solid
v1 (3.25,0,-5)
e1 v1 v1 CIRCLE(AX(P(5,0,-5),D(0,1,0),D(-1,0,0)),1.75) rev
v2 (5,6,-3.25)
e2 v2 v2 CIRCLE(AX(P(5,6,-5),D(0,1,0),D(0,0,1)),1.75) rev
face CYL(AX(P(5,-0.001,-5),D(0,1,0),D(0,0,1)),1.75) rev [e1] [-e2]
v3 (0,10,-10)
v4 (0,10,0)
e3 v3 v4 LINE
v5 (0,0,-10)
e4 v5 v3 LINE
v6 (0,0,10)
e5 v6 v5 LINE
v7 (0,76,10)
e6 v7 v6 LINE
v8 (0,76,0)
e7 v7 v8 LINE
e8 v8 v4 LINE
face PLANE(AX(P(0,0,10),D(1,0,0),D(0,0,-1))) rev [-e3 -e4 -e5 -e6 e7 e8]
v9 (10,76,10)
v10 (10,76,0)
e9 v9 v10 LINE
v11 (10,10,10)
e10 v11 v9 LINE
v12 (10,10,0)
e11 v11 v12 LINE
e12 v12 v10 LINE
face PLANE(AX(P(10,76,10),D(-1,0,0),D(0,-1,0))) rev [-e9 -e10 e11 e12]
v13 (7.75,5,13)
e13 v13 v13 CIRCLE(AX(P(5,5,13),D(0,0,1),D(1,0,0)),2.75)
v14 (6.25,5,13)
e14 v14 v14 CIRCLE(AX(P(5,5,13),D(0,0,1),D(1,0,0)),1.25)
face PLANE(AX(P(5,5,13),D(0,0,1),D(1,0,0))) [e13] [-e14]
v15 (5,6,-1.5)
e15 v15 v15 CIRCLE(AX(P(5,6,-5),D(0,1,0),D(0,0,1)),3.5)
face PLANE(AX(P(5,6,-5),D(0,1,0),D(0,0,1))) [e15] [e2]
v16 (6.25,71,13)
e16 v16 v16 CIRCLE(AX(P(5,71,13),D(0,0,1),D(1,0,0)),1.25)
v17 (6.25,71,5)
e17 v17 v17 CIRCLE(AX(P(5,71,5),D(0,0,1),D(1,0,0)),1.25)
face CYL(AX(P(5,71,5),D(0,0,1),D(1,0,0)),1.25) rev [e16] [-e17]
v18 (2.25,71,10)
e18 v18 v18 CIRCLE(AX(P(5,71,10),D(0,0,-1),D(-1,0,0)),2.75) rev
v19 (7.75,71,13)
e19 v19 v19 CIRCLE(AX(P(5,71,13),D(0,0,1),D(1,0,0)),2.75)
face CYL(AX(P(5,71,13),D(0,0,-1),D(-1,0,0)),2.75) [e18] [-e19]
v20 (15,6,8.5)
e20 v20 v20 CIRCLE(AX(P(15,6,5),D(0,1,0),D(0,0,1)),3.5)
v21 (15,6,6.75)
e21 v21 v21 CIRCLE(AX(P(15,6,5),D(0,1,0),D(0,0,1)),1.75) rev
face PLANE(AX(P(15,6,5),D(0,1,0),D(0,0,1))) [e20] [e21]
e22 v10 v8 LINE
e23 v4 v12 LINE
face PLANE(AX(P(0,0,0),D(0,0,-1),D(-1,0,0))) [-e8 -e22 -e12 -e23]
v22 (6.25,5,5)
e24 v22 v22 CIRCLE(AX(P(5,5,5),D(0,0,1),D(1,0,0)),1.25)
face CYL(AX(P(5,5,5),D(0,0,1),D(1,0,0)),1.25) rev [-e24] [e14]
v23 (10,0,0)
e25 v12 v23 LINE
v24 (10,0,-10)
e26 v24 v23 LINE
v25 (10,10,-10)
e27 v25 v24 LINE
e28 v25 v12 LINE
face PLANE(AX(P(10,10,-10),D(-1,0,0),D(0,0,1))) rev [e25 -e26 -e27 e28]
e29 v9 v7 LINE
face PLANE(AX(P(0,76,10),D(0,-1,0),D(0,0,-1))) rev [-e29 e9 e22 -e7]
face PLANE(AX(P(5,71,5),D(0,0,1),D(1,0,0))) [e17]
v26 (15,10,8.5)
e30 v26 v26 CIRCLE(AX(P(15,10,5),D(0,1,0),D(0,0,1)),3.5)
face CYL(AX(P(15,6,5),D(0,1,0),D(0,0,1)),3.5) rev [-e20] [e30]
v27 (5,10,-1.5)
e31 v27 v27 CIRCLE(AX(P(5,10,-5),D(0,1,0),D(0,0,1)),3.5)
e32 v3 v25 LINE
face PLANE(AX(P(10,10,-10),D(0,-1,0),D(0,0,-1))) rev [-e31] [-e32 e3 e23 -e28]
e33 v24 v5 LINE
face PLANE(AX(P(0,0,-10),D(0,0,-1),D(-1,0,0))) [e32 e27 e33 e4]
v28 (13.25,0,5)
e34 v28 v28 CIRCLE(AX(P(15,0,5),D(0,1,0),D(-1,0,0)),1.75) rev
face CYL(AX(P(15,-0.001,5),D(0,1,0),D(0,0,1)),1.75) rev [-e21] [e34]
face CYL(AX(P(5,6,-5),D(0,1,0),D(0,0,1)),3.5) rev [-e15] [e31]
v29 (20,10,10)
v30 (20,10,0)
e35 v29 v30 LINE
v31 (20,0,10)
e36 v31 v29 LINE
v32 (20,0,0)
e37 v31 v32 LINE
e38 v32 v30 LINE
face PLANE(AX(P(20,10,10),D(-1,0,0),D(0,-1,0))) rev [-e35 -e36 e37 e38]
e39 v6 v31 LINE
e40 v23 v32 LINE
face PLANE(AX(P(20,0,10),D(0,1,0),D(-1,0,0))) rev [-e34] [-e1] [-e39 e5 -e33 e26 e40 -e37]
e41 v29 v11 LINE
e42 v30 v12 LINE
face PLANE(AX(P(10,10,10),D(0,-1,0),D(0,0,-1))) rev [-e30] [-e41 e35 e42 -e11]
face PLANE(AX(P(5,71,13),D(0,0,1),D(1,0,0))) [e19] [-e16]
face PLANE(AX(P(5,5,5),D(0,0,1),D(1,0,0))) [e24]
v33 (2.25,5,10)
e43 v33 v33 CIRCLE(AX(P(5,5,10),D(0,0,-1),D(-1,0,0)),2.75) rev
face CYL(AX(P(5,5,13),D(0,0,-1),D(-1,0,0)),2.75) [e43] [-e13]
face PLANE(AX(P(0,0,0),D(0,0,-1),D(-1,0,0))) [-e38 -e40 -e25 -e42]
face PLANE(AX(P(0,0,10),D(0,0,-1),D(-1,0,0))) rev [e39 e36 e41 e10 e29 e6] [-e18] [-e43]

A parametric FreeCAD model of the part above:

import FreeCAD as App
import Part
import Sketcher


def add_polygon(sketch, points):
    """Adds a closed chain of lines whose ends are joined by coincident constraints."""
    first, n = sketch.GeometryCount, len(points)
    for a, b in zip(points, points[1:] + points[:1]):
        sketch.addGeometry(Part.LineSegment(App.Vector(*a, 0), App.Vector(*b, 0)), False)
    for i in range(n):
        sketch.addConstraint(Sketcher.Constraint("Coincident", first + i, 2, first + (i + 1) % n, 1))

doc = App.newDocument("Part")
body = doc.addObject("PartDesign::Body", "Body")

sketch1 = doc.addObject("Sketcher::SketchObject", "Sketch")
body.addObject(sketch1)
sketch1.AttachmentSupport = (doc.XY_Plane, [""])
sketch1.MapMode = "FlatFace"
add_polygon(sketch1, [(10, 76), (0, 76), (0, 0), (20, 0), (20, 10), (10, 10)])
sketch1.addConstraint([
    Sketcher.Constraint("Horizontal", 0),
    Sketcher.Constraint("Vertical", 1),
    Sketcher.Constraint("Horizontal", 2),
    Sketcher.Constraint("Vertical", 3),
    Sketcher.Constraint("Horizontal", 4),
    Sketcher.Constraint("Vertical", 5),
    Sketcher.Constraint("Coincident", 1, 2, -1, 1),
    Sketcher.Constraint("Equal", 0, 4),
    Sketcher.Constraint("Equal", 4, 3),
    Sketcher.Constraint("DistanceX", 0, 2, 0, 1, 10.0),
    Sketcher.Constraint("DistanceY", 1, 2, 1, 1, 76.0),
])
pad1 = doc.addObject("PartDesign::Pad", "Pad")
body.addObject(pad1)
pad1.Profile = sketch1
pad1.Length = 10

sketch2 = doc.addObject("Sketcher::SketchObject", "Sketch001")
body.addObject(sketch2)
sketch2.AttachmentSupport = (doc.XY_Plane, [""])
sketch2.MapMode = "FlatFace"
sketch2.AttachmentOffset = App.Placement(App.Vector(0, 0, 10), App.Rotation())
sketch2.addGeometry([
    Part.Circle(App.Vector(5, 71, 0), App.Vector(0, 0, 1), 2.75),
    Part.Circle(App.Vector(5, 5, 0), App.Vector(0, 0, 1), 2.75),
], False)
sketch2.addConstraint([
    Sketcher.Constraint("Equal", 0, 1),
    Sketcher.Constraint("Vertical", 0, 3, 1, 3),
    Sketcher.Constraint("Diameter", 0, 5.5),
    Sketcher.Constraint("DistanceX", -1, 1, 0, 3, 5.0),
    Sketcher.Constraint("DistanceY", -1, 1, 0, 3, 71.0),
    Sketcher.Constraint("DistanceY", -1, 1, 1, 3, 5.0),
])
pad2 = doc.addObject("PartDesign::Pad", "Pad001")
body.addObject(pad2)
pad2.Profile = sketch2
pad2.Length = 3

sketch3 = doc.addObject("Sketcher::SketchObject", "Sketch002")
body.addObject(sketch3)
sketch3.AttachmentSupport = (doc.XY_Plane, [""])
sketch3.MapMode = "FlatFace"
sketch3.AttachmentOffset = App.Placement(App.Vector(0, 0, 13), App.Rotation())
sketch3.addGeometry([
    Part.Circle(App.Vector(5, 71, 0), App.Vector(0, 0, 1), 1.25),
    Part.Circle(App.Vector(5, 5, 0), App.Vector(0, 0, 1), 1.25),
], False)
sketch3.addConstraint([
    Sketcher.Constraint("Equal", 0, 1),
    Sketcher.Constraint("Vertical", 0, 3, 1, 3),
    Sketcher.Constraint("Diameter", 0, 2.5),
    Sketcher.Constraint("DistanceX", -1, 1, 0, 3, 5.0),
    Sketcher.Constraint("DistanceY", -1, 1, 0, 3, 71.0),
    Sketcher.Constraint("DistanceY", -1, 1, 1, 3, 5.0),
])
pocket1 = doc.addObject("PartDesign::Pocket", "Pocket")
body.addObject(pocket1)
pocket1.Profile = sketch3
pocket1.Length = 8

sketch4 = doc.addObject("Sketcher::SketchObject", "Sketch003")
body.addObject(sketch4)
sketch4.AttachmentSupport = (doc.XY_Plane, [""])
sketch4.MapMode = "FlatFace"
add_polygon(sketch4, [(10, 10), (10, 0), (0, 0), (0, 10)])
sketch4.addConstraint([
    Sketcher.Constraint("Vertical", 0),
    Sketcher.Constraint("Horizontal", 1),
    Sketcher.Constraint("Vertical", 2),
    Sketcher.Constraint("Horizontal", 3),
    Sketcher.Constraint("Coincident", 1, 2, -1, 1),
    Sketcher.Constraint("Equal", 3, 0),
    Sketcher.Constraint("DistanceX", 1, 2, 1, 1, 10.0),
])
pad3 = doc.addObject("PartDesign::Pad", "Pad002")
body.addObject(pad3)
pad3.Profile = sketch4
pad3.Length = 10
pad3.Reversed = True

sketch5 = doc.addObject("Sketcher::SketchObject", "Sketch004")
body.addObject(sketch5)
sketch5.AttachmentSupport = (doc.XZ_Plane, [""])
sketch5.MapMode = "FlatFace"
sketch5.AttachmentOffset = App.Placement(App.Vector(0, 0, -10), App.Rotation())
sketch5.addGeometry(Part.Circle(App.Vector(15, 5, 0), App.Vector(0, 0, 1), 1.75), False)
sketch5.addConstraint([
    Sketcher.Constraint("Diameter", 0, 3.5),
    Sketcher.Constraint("DistanceX", -1, 1, 0, 3, 15.0),
    Sketcher.Constraint("DistanceY", -1, 1, 0, 3, 5.0),
])
pocket2 = doc.addObject("PartDesign::Pocket", "Pocket001")
body.addObject(pocket2)
pocket2.Profile = sketch5
pocket2.Type = "UpToFirst"
pocket2.Reversed = True

sketch6 = doc.addObject("Sketcher::SketchObject", "Sketch005")
body.addObject(sketch6)
sketch6.AttachmentSupport = (doc.XZ_Plane, [""])
sketch6.MapMode = "FlatFace"
sketch6.AttachmentOffset = App.Placement(App.Vector(0, 0, -10), App.Rotation())
sketch6.addGeometry(Part.Circle(App.Vector(5, -5, 0), App.Vector(0, 0, 1), 1.75), False)
sketch6.addConstraint([
    Sketcher.Constraint("Diameter", 0, 3.5),
    Sketcher.Constraint("DistanceX", -1, 1, 0, 3, 5.0),
    Sketcher.Constraint("DistanceY", 0, 3, -1, 1, 5.0),
])
pocket3 = doc.addObject("PartDesign::Pocket", "Pocket002")
body.addObject(pocket3)
pocket3.Profile = sketch6
pocket3.Type = "UpToFirst"
pocket3.Reversed = True

sketch7 = doc.addObject("Sketcher::SketchObject", "Sketch006")
body.addObject(sketch7)
sketch7.AttachmentSupport = (doc.XZ_Plane, [""])
sketch7.MapMode = "FlatFace"
sketch7.AttachmentOffset = App.Placement(App.Vector(0, 0, -10), App.Rotation())
sketch7.addGeometry([
    Part.Circle(App.Vector(15, 5, 0), App.Vector(0, 0, 1), 3.5),
    Part.Circle(App.Vector(5, -5, 0), App.Vector(0, 0, 1), 3.5),
], False)
sketch7.addConstraint([
    Sketcher.Constraint("Equal", 0, 1),
    Sketcher.Constraint("Diameter", 0, 7.0),
    Sketcher.Constraint("DistanceX", -1, 1, 0, 3, 15.0),
    Sketcher.Constraint("DistanceY", -1, 1, 0, 3, 5.0),
    Sketcher.Constraint("DistanceX", -1, 1, 1, 3, 5.0),
    Sketcher.Constraint("DistanceY", 1, 3, -1, 1, 5.0),
])
pocket4 = doc.addObject("PartDesign::Pocket", "Pocket003")
body.addObject(pocket4)
pocket4.Profile = sketch7
pocket4.Length = 4
pocket4.Reversed = True

doc.recompute()
